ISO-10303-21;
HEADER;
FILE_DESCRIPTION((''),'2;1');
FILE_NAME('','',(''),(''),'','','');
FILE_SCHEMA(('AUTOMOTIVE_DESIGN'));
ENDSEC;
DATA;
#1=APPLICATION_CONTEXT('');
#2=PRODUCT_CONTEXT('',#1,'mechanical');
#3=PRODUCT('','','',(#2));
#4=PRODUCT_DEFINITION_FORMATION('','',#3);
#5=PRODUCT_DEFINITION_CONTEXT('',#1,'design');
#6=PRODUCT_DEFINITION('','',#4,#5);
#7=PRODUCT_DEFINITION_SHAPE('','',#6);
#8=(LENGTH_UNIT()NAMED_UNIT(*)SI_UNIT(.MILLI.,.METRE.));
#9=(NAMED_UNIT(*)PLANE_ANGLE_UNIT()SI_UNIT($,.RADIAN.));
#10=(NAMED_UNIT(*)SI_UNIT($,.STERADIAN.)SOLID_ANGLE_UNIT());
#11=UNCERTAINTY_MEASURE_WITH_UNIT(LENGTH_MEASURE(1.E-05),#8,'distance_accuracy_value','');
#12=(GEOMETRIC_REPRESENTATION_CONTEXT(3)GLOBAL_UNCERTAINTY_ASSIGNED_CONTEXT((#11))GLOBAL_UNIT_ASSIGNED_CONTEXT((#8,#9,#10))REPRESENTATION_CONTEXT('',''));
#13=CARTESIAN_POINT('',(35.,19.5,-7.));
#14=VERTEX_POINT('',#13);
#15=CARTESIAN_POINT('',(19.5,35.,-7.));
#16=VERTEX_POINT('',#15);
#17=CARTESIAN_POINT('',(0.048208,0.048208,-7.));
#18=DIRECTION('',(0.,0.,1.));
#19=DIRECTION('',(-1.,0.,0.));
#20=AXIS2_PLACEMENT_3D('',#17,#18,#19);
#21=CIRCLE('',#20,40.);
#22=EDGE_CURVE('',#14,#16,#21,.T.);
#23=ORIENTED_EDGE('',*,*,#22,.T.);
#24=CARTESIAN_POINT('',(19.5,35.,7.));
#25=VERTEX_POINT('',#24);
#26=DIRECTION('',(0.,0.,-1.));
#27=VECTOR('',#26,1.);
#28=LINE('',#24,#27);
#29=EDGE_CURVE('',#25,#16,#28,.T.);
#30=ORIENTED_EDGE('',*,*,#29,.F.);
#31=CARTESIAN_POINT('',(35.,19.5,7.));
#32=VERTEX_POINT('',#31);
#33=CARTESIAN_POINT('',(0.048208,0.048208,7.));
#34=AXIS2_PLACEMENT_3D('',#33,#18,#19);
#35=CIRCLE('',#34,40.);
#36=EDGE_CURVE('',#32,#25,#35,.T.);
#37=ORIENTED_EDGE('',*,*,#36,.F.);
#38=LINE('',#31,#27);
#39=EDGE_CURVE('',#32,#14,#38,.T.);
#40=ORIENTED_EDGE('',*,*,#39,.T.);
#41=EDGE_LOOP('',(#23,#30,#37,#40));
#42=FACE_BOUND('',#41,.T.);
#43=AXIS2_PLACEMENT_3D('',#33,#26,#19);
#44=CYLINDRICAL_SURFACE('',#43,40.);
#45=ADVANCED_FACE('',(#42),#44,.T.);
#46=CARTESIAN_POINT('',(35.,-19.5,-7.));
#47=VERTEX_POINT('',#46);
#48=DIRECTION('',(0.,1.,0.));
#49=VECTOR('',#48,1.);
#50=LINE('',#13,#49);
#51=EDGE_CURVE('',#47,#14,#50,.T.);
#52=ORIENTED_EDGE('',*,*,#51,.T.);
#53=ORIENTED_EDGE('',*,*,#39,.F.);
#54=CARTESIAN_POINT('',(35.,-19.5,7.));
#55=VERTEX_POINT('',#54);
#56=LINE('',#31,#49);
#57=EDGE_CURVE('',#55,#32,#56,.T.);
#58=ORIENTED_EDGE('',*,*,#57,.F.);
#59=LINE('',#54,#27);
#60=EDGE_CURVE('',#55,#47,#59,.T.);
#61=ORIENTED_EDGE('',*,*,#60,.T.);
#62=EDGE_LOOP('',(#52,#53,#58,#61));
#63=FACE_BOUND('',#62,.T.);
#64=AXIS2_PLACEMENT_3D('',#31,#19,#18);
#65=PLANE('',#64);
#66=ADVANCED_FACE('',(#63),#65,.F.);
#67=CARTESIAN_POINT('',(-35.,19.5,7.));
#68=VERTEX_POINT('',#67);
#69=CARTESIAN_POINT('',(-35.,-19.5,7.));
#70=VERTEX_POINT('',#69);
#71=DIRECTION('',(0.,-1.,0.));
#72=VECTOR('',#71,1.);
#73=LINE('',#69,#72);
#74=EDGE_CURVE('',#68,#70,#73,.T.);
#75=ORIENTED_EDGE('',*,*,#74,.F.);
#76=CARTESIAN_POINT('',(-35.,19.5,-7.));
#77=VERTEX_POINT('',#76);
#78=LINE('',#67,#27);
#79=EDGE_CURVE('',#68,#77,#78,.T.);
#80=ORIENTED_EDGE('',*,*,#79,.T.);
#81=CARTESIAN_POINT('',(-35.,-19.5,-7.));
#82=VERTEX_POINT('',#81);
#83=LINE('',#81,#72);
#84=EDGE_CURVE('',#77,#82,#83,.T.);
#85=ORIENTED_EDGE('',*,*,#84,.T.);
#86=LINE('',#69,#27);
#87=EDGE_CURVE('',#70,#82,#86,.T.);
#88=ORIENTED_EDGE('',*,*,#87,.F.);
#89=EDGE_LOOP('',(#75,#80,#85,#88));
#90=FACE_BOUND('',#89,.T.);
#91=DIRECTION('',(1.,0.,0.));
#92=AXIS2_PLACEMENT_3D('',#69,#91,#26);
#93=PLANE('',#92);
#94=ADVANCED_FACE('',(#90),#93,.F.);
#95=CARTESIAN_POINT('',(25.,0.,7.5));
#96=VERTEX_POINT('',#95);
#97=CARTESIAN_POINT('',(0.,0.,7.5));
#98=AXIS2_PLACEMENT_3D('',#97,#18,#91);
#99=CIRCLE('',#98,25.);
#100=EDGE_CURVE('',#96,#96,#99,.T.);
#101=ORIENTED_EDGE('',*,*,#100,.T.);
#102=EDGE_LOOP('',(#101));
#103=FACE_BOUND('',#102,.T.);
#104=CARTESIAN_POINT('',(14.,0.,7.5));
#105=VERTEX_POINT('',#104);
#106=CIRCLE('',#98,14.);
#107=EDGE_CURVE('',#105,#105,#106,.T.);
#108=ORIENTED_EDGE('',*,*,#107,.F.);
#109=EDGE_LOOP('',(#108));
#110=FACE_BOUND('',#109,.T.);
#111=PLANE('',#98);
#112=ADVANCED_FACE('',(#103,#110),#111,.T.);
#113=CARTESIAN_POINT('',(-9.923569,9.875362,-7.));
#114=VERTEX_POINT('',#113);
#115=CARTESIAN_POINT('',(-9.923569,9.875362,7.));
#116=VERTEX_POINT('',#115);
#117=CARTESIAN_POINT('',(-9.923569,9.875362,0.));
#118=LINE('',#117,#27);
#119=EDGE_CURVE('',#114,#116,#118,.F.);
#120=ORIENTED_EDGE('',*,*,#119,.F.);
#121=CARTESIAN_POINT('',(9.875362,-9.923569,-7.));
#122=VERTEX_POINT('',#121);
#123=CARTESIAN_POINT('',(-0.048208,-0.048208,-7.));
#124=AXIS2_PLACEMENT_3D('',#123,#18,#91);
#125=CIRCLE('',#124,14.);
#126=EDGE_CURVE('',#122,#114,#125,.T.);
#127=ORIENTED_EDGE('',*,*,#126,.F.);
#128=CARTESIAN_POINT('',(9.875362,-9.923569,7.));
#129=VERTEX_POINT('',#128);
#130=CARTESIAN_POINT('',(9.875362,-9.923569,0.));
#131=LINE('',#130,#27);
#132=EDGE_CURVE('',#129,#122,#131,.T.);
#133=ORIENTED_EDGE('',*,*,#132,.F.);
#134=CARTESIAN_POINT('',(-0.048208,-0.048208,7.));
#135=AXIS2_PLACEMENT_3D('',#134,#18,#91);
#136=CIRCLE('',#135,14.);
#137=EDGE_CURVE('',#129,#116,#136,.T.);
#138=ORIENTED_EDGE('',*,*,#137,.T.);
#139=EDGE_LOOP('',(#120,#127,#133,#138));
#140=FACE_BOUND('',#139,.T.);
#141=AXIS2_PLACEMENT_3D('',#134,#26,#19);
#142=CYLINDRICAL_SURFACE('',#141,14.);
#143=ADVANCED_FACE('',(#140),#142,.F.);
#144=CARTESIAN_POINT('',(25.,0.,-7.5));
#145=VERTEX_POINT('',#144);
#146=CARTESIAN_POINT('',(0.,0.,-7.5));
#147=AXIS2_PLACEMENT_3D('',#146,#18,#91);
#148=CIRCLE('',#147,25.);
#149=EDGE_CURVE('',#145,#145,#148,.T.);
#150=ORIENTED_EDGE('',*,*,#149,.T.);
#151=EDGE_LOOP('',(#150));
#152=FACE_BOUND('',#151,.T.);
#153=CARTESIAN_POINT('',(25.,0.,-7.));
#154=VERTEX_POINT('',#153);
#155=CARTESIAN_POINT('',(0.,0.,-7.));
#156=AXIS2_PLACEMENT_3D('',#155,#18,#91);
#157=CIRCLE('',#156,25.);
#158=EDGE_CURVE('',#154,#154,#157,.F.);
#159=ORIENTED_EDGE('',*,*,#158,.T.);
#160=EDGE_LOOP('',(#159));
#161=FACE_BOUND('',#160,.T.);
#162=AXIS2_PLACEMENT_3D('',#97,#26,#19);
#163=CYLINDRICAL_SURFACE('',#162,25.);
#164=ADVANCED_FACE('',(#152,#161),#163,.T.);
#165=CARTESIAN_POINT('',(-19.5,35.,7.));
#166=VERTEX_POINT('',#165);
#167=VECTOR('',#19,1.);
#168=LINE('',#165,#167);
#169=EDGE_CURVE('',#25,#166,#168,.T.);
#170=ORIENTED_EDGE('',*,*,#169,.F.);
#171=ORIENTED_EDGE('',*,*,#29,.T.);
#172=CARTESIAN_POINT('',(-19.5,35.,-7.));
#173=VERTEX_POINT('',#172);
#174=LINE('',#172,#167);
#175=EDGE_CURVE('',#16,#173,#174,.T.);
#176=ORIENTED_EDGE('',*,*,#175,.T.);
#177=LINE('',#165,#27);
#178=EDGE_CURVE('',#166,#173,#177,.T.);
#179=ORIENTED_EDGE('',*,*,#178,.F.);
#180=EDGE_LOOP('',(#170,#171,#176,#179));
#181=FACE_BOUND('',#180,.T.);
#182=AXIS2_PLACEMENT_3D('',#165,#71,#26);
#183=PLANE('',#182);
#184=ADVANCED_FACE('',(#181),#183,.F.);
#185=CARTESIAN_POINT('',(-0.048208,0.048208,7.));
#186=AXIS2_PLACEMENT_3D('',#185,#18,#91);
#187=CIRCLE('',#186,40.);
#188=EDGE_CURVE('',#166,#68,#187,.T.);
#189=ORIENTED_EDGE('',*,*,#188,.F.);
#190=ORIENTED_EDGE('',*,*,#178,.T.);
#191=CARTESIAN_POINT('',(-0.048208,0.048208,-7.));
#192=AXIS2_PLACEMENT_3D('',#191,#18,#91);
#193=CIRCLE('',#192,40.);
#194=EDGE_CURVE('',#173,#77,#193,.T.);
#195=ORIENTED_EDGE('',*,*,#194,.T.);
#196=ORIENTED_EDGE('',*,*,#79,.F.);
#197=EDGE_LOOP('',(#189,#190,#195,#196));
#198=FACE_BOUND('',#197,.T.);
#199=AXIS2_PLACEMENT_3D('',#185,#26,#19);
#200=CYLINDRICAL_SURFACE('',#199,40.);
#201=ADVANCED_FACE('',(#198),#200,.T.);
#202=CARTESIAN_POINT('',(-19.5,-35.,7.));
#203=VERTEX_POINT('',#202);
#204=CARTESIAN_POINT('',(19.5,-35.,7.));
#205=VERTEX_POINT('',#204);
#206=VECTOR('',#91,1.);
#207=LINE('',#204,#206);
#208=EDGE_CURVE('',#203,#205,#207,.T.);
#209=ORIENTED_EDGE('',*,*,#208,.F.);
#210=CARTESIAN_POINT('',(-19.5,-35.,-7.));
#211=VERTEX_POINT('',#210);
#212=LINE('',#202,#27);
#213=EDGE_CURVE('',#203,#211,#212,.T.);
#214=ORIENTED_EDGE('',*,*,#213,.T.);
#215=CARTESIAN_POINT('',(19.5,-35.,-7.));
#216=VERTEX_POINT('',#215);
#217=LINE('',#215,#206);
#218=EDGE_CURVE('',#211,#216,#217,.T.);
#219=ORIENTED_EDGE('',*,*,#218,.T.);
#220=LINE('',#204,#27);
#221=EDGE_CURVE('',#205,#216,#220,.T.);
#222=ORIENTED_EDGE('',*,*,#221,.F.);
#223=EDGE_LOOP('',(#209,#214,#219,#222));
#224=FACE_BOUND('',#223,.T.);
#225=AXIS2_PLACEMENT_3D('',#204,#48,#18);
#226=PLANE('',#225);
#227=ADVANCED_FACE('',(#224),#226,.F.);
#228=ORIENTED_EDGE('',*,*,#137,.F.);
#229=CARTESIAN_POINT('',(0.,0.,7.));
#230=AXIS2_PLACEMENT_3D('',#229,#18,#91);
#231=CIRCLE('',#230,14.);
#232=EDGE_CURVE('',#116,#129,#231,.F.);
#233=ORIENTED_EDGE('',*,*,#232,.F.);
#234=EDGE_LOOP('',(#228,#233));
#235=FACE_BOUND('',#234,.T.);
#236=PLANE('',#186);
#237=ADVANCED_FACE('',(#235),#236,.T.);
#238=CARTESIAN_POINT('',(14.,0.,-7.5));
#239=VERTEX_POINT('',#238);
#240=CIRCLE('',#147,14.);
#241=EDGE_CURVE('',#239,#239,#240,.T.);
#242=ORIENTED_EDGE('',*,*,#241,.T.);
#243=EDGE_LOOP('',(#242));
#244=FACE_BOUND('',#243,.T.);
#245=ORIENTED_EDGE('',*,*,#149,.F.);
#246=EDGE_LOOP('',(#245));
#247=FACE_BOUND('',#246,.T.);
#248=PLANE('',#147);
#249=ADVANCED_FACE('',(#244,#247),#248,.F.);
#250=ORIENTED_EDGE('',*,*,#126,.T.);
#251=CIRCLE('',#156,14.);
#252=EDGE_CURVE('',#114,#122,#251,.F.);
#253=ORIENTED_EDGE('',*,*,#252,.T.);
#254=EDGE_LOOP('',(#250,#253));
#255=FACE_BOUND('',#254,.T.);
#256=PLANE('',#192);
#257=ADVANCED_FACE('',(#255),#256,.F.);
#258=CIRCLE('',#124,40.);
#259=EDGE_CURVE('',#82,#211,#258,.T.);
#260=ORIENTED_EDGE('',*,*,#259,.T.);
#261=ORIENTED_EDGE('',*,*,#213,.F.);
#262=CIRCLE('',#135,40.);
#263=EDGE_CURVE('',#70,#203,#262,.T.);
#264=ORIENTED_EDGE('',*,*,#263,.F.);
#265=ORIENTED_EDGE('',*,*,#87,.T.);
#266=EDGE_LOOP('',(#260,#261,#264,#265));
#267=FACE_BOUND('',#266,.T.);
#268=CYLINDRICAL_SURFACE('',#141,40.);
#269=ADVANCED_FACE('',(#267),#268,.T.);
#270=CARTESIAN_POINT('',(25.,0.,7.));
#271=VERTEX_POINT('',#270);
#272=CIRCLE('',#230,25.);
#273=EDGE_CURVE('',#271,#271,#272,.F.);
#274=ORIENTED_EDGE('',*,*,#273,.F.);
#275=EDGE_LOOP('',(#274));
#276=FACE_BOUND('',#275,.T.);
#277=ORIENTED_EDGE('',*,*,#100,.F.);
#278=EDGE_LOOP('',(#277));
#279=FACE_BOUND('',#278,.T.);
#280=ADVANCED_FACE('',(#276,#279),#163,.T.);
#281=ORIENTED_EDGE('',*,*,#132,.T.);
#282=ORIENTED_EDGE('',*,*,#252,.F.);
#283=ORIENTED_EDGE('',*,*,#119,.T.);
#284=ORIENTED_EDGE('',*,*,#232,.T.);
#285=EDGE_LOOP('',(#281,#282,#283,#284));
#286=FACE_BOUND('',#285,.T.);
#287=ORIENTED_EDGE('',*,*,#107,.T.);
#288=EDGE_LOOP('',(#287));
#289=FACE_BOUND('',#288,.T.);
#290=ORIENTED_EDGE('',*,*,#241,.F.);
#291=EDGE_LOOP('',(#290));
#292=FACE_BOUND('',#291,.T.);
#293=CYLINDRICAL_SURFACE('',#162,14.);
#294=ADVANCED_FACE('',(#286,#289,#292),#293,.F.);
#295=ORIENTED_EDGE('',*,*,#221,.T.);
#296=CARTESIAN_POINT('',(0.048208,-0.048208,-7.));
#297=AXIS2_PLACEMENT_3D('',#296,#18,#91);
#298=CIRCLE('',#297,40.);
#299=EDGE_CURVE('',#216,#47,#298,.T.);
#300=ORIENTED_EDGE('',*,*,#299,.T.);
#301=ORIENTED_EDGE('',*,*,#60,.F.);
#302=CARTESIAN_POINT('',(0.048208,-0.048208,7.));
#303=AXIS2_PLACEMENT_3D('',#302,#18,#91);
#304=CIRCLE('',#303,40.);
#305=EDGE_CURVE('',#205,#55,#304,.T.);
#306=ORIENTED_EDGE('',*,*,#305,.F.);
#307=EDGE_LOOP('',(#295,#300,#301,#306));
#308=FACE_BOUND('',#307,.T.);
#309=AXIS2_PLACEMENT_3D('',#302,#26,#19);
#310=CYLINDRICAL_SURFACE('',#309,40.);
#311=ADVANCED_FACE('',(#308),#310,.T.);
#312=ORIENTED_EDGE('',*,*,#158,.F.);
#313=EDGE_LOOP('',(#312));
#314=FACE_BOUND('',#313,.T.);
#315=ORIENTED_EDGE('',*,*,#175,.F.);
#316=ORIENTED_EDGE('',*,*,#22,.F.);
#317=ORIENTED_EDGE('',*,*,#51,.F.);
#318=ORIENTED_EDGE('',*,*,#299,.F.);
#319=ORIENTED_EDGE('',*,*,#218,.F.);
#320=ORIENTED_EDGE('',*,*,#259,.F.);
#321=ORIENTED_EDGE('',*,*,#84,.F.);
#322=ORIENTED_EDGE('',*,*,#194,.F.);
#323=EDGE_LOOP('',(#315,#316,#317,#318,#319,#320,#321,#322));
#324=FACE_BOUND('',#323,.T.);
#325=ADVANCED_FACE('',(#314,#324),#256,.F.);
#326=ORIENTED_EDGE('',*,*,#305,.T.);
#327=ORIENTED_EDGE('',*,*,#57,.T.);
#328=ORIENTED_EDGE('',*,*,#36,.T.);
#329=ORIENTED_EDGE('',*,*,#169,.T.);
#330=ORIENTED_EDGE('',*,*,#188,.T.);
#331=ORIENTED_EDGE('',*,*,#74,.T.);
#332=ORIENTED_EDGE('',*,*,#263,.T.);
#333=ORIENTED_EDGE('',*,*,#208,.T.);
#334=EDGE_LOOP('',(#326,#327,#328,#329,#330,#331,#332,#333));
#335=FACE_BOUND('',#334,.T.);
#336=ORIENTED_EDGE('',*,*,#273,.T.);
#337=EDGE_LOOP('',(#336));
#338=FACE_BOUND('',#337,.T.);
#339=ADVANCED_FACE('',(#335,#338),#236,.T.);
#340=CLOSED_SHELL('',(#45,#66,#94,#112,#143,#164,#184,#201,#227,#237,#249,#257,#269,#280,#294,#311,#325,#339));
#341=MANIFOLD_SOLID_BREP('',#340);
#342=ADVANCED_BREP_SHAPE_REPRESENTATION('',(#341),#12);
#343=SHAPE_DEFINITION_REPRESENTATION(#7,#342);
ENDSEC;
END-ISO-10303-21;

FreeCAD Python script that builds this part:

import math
import FreeCAD as App
import Part
import Sketcher
Q = App.Units.Quantity

doc = App.newDocument("Part")
body = doc.addObject("PartDesign::Body", "Body")

# Sketch on XY plane
sketch1 = body.newObject("Sketcher::SketchObject", "Sketch")
sketch1.AttachmentSupport = (doc.getObject("XY_Plane"), [""])
sketch1.MapMode = "FlatFace"
sketch1.addGeometry([
    Part.LineSegment(App.Vector(19.5, 35, 0), App.Vector(-19.5, 35, 0)),  # 0
    Part.ArcOfCircle(Part.Circle(App.Vector(-0.048208, 0.048208, 0), App.Vector(0, 0, 1), 40), math.radians(119.097339), math.radians(150.902661)),  # 1
    Part.LineSegment(App.Vector(-35, 19.5, 0), App.Vector(-35, -19.5, 0)),  # 2
    Part.ArcOfCircle(Part.Circle(App.Vector(-0.048208, -0.048208, 0), App.Vector(0, 0, 1), 40), math.radians(-150.902661), math.radians(-119.097339)),  # 3
    Part.LineSegment(App.Vector(-19.5, -35, 0), App.Vector(19.5, -35, 0)),  # 4
    Part.ArcOfCircle(Part.Circle(App.Vector(0.048208, -0.048208, 0), App.Vector(0, 0, 1), 40), math.radians(-60.902661), math.radians(-29.097339)),  # 5
    Part.LineSegment(App.Vector(35, -19.5, 0), App.Vector(35, 19.5, 0)),  # 6
    Part.ArcOfCircle(Part.Circle(App.Vector(0.048208, 0.048208, 0), App.Vector(0, 0, 1), 40), math.radians(29.097339), math.radians(60.902661)),  # 7
    Part.Circle(App.Vector(-0.048208, -0.048208, 0), App.Vector(0, 0, 1), 14),  # 8
], False)
sketch1.addConstraint([
    Sketcher.Constraint("Coincident", 0, 2, 1, 1),
    Sketcher.Constraint("Coincident", 1, 2, 2, 1),
    Sketcher.Constraint("Coincident", 2, 2, 3, 1),
    Sketcher.Constraint("Coincident", 3, 2, 4, 1),
    Sketcher.Constraint("Coincident", 4, 2, 5, 1),
    Sketcher.Constraint("Coincident", 5, 2, 6, 1),
    Sketcher.Constraint("Coincident", 6, 2, 7, 1),
    Sketcher.Constraint("Coincident", 7, 2, 0, 1),
    Sketcher.Constraint("Horizontal", 0),
    Sketcher.Constraint("Vertical", 2),
    Sketcher.Constraint("Horizontal", 4),
    Sketcher.Constraint("Vertical", 6),
    Sketcher.Constraint("Coincident", 8, 3, 3, 3),
    Sketcher.Constraint("Equal", 1, 3),
    Sketcher.Constraint("Equal", 3, 5),
    Sketcher.Constraint("Equal", 5, 7),
    Sketcher.Constraint("Symmetric", 1, 3, 5, 3, -1, 1),
    Sketcher.Constraint("Symmetric", 3, 3, 7, 3, -1, 1),
    Sketcher.Constraint("Symmetric", 3, 3, 5, 3, -2),
    Sketcher.Constraint("Horizontal", 2, 2, 5, 2),
    Sketcher.Constraint("Vertical", 0, 2, 3, 2),
    Sketcher.Constraint("Equal", 4, 2),
    Sketcher.Constraint("Diameter", 8, Q("28 mm")),
    Sketcher.Constraint("Radius", 1, Q("40 mm")),
    Sketcher.Constraint("DistanceX", 0, 2, 0, 1, Q("39 mm")),
    Sketcher.Constraint("DistanceY", -1, 1, 0, 2, Q("35 mm")),
    Sketcher.Constraint("DistanceX", 1, 2, -1, 1, Q("35 mm")),
])
pad1 = body.newObject("PartDesign::Pad", "Pad")
pad1.Profile = sketch1
pad1.Length = 14
pad1.Midplane = True

# Sketch on XY plane
sketch2 = body.newObject("Sketcher::SketchObject", "Sketch001")
sketch2.AttachmentSupport = (doc.getObject("XY_Plane"), [""])
sketch2.MapMode = "FlatFace"
sketch2.addGeometry([
    Part.Circle(App.Vector(0, 0, 0), App.Vector(0, 0, 1), 25),
    Part.Circle(App.Vector(0, 0, 0), App.Vector(0, 0, 1), 14),
], False)
sketch2.addConstraint([
    Sketcher.Constraint("Coincident", 0, 3, -1, 1),
    Sketcher.Constraint("Coincident", 1, 3, -1, 1),
    Sketcher.Constraint("Diameter", 0, Q("50 mm")),
    Sketcher.Constraint("Diameter", 1, Q("28 mm")),
])
pad2 = body.newObject("PartDesign::Pad", "Pad001")
pad2.Profile = sketch2
pad2.Length = 15
pad2.Midplane = True

doc.recompute()
